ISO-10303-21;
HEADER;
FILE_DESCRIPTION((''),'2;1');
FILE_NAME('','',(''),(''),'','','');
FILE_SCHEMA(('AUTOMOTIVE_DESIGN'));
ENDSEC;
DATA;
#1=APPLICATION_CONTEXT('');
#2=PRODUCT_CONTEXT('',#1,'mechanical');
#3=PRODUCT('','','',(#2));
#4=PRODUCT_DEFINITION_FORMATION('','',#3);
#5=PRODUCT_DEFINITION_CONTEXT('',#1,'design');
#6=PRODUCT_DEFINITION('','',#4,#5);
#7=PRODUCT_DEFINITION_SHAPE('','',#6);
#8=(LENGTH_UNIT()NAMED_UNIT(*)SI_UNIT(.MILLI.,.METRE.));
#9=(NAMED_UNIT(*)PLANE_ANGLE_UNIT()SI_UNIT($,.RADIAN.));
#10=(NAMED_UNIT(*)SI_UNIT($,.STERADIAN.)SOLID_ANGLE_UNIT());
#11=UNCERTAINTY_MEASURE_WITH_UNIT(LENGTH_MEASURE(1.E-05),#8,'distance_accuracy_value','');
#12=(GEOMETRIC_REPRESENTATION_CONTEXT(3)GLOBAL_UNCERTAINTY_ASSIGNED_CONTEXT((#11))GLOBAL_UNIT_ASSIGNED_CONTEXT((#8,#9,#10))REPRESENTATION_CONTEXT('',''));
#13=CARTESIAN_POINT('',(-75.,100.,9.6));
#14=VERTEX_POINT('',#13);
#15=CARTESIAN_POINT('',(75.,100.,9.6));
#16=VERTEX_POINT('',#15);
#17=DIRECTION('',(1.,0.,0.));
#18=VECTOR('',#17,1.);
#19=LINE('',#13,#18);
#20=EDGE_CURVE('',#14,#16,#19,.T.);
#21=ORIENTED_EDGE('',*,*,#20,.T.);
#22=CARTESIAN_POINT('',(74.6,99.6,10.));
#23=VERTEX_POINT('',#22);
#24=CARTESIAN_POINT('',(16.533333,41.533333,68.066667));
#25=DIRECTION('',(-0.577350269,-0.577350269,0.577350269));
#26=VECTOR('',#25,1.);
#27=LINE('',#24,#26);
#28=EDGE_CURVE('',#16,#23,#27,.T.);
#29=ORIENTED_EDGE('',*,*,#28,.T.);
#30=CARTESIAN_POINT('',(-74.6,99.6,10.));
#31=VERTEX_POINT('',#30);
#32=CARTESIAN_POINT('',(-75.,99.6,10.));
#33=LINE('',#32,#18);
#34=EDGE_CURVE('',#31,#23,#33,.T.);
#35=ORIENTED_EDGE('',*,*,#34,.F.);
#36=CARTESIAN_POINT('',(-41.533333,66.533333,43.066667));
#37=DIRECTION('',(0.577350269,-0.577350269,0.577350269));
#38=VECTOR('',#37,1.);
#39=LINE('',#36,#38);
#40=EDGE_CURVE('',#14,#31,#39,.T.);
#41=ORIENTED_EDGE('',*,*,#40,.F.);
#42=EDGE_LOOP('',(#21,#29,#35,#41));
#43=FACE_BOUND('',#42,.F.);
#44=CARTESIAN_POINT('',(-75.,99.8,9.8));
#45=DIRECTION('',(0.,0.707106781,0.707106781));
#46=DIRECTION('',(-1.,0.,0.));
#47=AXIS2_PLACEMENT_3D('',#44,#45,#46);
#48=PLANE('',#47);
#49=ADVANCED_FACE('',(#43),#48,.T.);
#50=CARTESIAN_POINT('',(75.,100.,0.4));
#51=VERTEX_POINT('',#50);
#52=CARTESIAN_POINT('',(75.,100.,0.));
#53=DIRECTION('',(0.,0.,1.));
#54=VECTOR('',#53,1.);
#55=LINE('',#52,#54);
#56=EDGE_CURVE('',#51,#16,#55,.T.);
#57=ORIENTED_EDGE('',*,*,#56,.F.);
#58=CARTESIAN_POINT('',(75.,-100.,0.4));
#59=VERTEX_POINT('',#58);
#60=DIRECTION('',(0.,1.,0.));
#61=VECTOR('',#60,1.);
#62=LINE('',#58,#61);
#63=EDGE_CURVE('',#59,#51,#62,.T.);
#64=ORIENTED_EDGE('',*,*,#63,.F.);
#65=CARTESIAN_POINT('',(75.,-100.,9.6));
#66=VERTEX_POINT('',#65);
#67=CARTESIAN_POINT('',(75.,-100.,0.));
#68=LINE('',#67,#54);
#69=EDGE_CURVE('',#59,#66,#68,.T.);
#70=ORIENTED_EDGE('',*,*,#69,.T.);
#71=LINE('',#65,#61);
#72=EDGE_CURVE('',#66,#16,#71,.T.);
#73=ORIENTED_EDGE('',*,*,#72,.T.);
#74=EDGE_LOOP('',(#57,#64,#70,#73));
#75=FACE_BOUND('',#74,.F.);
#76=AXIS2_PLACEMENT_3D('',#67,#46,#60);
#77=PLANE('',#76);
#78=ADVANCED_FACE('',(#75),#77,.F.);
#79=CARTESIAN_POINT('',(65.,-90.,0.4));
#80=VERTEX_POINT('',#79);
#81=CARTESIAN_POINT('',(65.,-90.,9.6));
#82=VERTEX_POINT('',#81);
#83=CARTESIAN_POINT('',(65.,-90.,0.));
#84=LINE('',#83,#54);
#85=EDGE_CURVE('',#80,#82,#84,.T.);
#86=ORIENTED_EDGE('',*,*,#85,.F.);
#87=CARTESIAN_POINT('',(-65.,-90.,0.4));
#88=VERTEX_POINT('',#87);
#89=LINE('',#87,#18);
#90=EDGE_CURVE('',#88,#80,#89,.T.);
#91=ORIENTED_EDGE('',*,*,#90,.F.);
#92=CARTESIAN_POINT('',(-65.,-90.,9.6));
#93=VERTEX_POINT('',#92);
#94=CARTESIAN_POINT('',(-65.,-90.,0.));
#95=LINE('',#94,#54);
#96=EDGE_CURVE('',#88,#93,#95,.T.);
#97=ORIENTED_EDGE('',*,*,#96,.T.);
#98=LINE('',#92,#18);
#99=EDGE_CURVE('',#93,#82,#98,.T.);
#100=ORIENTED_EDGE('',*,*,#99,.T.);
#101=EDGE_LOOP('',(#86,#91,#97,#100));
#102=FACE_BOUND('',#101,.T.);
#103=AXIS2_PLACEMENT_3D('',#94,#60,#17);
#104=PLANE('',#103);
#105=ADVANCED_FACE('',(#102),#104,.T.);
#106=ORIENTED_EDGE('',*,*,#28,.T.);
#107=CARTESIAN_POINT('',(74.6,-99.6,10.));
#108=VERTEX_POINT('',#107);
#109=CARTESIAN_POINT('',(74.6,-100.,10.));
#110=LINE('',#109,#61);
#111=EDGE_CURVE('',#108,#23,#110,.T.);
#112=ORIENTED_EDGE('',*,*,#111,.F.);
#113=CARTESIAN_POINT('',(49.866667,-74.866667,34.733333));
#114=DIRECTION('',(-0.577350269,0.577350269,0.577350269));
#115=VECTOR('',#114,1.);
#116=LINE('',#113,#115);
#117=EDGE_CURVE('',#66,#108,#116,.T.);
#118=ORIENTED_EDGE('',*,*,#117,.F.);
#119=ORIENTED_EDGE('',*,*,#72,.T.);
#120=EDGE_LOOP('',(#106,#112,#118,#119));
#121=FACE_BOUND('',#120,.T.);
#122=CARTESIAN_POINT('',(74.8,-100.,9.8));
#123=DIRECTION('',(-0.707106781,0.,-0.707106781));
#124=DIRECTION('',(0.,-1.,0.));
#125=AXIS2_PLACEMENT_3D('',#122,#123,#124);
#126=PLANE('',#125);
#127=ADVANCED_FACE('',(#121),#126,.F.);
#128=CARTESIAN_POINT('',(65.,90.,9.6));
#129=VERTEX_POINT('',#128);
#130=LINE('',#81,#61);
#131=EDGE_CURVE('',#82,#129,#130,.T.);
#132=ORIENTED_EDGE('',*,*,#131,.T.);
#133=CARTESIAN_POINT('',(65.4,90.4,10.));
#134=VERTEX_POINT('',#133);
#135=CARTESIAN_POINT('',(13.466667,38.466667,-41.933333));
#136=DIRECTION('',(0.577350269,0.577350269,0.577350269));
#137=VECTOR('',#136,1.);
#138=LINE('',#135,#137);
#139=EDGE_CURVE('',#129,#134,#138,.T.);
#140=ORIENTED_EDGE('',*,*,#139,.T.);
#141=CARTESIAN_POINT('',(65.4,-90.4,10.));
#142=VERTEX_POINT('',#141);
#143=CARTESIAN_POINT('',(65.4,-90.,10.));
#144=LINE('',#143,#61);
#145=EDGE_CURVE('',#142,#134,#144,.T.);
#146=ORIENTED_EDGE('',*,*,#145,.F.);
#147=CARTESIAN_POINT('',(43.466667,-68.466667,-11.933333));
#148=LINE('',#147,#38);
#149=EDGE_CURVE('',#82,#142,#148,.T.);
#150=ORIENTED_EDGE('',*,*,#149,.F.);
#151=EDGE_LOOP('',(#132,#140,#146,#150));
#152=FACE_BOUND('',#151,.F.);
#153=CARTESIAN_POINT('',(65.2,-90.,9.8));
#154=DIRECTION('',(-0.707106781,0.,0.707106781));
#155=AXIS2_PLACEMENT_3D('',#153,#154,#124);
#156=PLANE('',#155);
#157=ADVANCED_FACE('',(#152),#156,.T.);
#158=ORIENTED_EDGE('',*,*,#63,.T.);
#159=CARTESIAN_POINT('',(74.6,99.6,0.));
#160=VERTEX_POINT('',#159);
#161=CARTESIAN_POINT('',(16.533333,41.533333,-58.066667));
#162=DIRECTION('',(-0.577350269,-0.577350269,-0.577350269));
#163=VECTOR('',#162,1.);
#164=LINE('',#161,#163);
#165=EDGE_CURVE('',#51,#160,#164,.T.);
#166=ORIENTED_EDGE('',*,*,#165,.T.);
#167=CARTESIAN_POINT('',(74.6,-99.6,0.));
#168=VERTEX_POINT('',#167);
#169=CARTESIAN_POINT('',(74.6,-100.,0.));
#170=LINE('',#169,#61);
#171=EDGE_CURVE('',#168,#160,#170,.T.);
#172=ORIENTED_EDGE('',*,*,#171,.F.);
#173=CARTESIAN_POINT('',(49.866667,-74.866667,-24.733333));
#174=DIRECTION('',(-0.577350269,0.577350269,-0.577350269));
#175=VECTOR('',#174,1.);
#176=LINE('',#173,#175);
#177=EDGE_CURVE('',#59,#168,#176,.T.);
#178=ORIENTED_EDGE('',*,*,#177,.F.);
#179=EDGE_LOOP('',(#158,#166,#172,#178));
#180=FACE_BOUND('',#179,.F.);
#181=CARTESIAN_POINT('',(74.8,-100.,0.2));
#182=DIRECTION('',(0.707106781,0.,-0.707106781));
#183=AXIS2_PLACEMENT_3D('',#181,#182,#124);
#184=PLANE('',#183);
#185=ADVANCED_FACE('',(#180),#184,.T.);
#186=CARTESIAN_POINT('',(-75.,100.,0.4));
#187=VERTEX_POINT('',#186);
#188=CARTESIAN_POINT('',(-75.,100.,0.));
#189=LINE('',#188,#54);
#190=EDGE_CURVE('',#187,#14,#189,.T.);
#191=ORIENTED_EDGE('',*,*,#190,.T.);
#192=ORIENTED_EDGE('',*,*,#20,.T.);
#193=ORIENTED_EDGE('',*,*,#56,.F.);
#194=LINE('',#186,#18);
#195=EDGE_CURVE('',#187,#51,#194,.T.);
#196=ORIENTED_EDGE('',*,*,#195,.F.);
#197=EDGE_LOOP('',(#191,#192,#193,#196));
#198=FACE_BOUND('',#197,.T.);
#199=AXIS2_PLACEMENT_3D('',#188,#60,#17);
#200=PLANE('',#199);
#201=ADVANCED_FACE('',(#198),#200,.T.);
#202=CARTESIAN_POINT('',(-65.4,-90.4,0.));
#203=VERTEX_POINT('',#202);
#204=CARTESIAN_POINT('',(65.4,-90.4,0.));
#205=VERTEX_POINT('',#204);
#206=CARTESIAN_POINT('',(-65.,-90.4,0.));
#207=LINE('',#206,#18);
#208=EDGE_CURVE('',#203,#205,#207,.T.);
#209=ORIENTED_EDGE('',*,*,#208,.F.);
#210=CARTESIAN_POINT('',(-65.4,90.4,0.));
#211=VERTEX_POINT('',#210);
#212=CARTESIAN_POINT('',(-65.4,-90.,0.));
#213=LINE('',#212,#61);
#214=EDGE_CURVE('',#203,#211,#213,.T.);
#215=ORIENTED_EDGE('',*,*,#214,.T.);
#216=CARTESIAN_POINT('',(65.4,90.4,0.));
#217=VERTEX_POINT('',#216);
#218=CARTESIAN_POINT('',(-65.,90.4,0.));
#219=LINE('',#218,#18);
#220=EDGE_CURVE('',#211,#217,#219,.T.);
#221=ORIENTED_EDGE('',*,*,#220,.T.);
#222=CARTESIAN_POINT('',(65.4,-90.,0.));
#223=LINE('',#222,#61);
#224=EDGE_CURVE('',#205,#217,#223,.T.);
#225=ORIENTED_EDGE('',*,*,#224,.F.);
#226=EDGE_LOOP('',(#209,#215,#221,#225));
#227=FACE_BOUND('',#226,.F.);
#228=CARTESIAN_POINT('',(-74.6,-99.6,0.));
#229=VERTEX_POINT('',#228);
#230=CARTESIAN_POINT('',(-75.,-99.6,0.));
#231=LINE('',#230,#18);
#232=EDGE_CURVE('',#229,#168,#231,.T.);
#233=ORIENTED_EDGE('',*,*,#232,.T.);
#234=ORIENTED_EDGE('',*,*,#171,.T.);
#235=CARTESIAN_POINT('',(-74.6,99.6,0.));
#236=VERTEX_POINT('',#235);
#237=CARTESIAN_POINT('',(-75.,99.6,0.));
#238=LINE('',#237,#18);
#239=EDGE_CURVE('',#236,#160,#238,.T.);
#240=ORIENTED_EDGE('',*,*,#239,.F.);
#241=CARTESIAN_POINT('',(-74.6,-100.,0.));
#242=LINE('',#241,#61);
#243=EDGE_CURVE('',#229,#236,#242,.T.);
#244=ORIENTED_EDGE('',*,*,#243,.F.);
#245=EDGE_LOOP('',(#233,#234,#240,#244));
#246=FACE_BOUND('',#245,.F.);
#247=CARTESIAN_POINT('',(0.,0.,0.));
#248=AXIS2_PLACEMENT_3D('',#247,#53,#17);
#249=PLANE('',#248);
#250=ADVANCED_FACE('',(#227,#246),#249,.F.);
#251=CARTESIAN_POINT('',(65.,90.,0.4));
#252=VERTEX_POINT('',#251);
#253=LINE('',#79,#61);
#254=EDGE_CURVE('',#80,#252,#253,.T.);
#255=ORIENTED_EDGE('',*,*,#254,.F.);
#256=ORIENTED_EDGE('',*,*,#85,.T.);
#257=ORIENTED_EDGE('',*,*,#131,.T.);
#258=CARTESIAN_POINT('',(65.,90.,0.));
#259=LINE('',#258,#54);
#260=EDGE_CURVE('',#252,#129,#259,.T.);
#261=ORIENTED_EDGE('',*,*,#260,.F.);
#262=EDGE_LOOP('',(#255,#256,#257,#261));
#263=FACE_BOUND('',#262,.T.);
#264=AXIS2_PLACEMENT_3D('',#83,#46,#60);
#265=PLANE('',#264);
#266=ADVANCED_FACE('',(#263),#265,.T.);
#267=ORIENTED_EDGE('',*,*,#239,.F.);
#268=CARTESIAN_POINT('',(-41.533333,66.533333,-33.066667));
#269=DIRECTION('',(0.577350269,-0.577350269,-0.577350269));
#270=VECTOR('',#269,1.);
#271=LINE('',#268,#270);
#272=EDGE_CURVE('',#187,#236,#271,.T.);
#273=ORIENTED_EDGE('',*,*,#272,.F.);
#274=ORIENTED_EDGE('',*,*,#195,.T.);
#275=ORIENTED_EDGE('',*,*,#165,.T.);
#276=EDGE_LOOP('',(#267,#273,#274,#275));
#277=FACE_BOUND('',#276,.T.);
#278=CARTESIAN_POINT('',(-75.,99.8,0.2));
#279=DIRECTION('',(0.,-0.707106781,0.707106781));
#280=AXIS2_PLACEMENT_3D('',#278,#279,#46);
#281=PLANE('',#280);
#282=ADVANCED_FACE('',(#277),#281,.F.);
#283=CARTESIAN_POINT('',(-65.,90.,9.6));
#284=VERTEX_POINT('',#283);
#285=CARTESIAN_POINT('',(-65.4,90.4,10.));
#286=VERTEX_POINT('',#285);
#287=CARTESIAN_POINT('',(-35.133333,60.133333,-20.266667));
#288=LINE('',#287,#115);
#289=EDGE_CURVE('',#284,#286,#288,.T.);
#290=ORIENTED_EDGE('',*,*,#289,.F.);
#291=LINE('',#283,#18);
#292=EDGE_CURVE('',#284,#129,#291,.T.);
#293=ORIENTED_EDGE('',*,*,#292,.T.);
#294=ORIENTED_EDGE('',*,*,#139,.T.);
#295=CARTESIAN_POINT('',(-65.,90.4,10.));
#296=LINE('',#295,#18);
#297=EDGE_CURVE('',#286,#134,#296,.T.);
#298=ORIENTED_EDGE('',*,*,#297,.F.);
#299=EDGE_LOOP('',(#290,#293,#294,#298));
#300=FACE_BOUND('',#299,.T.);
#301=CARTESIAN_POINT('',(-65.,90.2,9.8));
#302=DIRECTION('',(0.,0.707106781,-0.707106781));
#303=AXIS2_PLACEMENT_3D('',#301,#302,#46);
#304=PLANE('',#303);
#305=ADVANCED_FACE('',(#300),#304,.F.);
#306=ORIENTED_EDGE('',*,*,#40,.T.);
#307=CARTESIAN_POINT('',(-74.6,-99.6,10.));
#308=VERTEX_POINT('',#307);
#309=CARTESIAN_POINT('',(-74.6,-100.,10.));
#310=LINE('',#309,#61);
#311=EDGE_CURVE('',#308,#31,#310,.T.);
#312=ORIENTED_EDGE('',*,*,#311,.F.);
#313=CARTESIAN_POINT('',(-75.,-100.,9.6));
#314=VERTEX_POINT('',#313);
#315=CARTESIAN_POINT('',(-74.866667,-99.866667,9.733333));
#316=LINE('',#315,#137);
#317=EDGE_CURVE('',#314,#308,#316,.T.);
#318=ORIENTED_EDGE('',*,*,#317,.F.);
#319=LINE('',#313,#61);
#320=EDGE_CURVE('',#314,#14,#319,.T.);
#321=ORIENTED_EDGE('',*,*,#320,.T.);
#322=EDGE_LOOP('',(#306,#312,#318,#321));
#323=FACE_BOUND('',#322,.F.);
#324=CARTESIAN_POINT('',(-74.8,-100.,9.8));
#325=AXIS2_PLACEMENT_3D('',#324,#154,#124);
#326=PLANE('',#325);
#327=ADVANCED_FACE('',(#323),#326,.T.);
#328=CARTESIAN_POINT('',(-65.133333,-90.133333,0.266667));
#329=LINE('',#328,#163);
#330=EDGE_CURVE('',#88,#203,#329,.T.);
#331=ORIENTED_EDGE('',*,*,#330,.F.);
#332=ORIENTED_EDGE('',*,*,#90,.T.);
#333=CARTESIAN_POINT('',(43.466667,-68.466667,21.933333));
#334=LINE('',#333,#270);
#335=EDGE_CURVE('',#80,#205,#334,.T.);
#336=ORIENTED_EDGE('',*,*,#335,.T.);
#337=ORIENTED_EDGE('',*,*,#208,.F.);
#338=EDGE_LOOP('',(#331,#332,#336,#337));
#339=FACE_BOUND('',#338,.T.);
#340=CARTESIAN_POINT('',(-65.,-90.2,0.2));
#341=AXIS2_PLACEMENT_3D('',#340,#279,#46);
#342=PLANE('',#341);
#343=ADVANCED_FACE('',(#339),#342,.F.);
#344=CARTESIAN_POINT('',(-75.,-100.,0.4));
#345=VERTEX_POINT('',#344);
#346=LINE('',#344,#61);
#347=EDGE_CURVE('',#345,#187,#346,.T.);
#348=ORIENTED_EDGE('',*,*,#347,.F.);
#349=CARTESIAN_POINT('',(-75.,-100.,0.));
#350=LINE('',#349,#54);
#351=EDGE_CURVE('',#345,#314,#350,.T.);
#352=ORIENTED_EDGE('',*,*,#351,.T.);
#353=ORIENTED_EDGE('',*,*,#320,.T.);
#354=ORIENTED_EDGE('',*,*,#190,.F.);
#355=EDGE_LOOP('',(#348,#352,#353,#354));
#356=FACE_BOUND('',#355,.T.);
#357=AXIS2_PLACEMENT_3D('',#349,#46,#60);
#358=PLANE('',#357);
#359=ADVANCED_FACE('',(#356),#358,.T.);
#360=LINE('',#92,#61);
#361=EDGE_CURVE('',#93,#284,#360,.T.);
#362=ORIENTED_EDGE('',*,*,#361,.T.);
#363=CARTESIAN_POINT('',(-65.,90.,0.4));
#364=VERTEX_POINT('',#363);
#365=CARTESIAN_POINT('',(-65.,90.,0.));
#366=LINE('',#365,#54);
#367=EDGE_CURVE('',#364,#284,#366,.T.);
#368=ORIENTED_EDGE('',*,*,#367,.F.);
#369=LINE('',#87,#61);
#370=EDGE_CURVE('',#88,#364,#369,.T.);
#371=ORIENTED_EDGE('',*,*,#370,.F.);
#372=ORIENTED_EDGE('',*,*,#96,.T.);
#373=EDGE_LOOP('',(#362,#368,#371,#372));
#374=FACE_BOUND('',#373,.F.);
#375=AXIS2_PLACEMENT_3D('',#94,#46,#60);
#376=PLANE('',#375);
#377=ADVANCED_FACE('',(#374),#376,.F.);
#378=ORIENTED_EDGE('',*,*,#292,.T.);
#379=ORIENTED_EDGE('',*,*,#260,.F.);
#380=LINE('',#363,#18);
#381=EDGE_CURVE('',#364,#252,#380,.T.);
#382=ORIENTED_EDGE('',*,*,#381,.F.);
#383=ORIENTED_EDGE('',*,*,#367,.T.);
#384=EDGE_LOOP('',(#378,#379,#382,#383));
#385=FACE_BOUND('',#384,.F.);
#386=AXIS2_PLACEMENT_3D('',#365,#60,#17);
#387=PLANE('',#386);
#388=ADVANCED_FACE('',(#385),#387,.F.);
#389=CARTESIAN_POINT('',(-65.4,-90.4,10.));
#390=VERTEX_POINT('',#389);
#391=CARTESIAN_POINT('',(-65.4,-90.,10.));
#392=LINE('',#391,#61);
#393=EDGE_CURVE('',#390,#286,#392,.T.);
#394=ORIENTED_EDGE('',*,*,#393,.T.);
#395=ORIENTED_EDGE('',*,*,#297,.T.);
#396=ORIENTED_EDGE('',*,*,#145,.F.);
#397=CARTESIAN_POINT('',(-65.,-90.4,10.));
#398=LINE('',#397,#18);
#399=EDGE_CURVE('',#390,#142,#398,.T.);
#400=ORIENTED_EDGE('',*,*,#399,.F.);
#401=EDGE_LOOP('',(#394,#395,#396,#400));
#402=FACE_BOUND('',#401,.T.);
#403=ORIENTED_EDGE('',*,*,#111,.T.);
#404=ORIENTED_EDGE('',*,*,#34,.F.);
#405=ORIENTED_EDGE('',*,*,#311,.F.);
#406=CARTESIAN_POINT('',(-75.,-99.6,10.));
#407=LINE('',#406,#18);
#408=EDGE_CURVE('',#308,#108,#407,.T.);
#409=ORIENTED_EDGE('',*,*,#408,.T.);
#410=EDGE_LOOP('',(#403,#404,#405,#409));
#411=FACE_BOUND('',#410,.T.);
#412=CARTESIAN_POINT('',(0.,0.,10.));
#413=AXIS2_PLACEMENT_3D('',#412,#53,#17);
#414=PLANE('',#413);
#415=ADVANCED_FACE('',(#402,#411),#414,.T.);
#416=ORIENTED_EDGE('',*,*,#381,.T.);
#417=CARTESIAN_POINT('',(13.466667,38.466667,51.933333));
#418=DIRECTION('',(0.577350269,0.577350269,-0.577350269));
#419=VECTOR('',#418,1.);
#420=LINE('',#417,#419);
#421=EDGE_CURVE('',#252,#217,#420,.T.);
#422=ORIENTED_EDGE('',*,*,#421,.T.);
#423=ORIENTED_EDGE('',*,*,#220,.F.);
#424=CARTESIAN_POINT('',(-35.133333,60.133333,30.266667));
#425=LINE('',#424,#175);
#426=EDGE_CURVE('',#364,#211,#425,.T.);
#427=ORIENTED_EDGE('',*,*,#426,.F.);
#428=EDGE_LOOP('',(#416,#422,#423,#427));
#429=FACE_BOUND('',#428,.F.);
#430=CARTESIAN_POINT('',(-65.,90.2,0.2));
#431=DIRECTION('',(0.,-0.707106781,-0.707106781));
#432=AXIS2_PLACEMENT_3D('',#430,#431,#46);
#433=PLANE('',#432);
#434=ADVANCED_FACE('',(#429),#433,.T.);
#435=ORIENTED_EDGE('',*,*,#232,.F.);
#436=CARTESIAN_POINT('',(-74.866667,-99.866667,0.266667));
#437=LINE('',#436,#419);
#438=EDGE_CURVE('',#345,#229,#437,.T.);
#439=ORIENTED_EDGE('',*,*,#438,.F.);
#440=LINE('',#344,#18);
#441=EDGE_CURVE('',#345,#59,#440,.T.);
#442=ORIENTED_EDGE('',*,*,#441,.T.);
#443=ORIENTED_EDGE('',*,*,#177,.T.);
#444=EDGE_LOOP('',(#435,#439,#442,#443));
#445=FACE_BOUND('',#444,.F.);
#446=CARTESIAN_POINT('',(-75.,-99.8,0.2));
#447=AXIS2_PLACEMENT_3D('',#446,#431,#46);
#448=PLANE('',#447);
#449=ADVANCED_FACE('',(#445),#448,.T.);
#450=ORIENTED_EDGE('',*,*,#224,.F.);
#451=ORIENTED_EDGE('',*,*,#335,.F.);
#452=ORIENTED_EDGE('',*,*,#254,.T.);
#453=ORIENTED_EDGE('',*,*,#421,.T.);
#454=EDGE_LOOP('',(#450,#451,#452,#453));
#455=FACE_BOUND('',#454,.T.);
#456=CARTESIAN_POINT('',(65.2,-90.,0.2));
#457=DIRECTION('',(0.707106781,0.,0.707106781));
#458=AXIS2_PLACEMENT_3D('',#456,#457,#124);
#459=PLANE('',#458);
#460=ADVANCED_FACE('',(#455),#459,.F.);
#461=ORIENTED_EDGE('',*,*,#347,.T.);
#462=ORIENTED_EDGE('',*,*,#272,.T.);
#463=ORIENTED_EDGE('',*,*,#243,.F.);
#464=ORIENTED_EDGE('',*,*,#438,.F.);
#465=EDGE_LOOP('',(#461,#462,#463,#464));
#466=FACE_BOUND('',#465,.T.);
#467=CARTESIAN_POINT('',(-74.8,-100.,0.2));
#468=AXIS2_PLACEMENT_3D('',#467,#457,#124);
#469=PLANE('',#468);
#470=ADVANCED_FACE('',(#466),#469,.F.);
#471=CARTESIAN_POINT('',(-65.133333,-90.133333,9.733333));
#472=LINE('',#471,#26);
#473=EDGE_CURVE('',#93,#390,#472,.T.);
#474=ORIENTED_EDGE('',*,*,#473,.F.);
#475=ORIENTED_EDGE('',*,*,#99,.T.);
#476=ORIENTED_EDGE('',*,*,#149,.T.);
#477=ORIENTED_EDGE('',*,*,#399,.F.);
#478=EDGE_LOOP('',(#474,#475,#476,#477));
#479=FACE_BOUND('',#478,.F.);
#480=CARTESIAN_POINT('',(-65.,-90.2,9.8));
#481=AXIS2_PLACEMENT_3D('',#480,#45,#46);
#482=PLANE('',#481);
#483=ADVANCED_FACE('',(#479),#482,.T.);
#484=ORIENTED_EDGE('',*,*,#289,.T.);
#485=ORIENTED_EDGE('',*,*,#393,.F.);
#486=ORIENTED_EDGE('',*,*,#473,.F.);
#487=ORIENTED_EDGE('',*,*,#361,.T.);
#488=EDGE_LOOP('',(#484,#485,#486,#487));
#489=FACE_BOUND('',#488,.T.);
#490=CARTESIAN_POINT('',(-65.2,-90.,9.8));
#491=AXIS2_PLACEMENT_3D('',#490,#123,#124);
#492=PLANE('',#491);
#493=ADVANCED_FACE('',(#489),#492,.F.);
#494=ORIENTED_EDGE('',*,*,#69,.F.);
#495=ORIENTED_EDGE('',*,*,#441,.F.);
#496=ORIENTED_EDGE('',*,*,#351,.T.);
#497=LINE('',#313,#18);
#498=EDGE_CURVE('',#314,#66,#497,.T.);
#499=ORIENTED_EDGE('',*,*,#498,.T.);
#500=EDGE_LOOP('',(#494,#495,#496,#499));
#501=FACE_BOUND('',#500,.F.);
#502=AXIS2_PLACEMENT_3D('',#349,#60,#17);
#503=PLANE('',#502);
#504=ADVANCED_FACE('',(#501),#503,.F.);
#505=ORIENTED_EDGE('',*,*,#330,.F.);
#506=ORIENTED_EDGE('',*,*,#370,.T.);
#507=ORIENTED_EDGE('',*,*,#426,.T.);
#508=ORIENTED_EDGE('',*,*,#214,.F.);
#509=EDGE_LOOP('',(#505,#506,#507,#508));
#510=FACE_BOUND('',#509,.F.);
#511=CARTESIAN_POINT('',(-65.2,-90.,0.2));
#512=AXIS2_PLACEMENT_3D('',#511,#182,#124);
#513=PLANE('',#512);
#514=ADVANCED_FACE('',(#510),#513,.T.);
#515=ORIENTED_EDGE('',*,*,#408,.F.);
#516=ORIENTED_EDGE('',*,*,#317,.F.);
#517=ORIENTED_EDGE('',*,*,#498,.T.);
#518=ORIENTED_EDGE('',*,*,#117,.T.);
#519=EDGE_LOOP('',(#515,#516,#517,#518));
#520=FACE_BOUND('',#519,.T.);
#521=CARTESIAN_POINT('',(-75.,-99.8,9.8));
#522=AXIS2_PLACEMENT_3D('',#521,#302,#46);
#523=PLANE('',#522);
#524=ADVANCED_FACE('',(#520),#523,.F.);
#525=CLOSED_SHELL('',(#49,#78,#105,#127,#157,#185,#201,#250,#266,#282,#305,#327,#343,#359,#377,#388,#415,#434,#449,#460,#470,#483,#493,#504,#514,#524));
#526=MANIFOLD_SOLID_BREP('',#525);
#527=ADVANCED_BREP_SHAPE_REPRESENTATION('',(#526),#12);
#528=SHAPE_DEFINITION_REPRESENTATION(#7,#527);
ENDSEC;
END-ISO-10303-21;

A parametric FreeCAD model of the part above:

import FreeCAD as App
import Part
import Sketcher

V = App.Vector


def edges_at(feature, points):
    """Names of the edges that pass closest to the given points."""
    edges = feature.Shape.Edges
    near = lambda p: min(range(len(edges)), key=lambda i: edges[i].distToShape(Part.Vertex(*p))[0])
    return sorted({f"Edge{near(p) + 1}" for p in points})


def add_polygon(sketch, points):
    """Adds a closed chain of lines whose ends are joined by coincident constraints."""
    first, n = sketch.GeometryCount, len(points)
    for a, b in zip(points, points[1:] + points[:1]):
        sketch.addGeometry(Part.LineSegment(App.Vector(*a, 0), App.Vector(*b, 0)), False)
    for i in range(n):
        sketch.addConstraint(Sketcher.Constraint("Coincident", first + i, 2, first + (i + 1) % n, 1))

doc = App.newDocument("Part")
body = doc.addObject("PartDesign::Body", "Body")

# Sketch on XY plane
sketch1 = body.newObject("Sketcher::SketchObject", "Sketch")
sketch1.AttachmentSupport = (doc.getObject("XY_Plane"), [""])
sketch1.MapMode = "FlatFace"
add_polygon(sketch1, [(-75, 100), (-75, -100), (75, -100), (75, 100)])  # lines 0-3
add_polygon(sketch1, [(65, -90), (-65, -90), (-65, 90), (65, 90)])  # lines 4-7
sketch1.addConstraint(Sketcher.Constraint("Vertical", 0))
sketch1.addConstraint(Sketcher.Constraint("Horizontal", 1))
sketch1.addConstraint(Sketcher.Constraint("Vertical", 2))
sketch1.addConstraint(Sketcher.Constraint("Horizontal", 3))
sketch1.addConstraint(Sketcher.Constraint("Horizontal", 4))
sketch1.addConstraint(Sketcher.Constraint("Vertical", 5))
sketch1.addConstraint(Sketcher.Constraint("Horizontal", 6))
sketch1.addConstraint(Sketcher.Constraint("Vertical", 7))
sketch1.addConstraint(Sketcher.Constraint("Symmetric", 0, 2, 2, 2, -1, 1))
sketch1.addConstraint(Sketcher.Constraint("Symmetric", 4, 2, 6, 2, -1, 1))
sketch1.addConstraint(Sketcher.Constraint("DistanceX", 1, 1, 1, 2, 150.0))
sketch1.addConstraint(Sketcher.Constraint("DistanceX", 4, 2, 4, 1, 130.0))
sketch1.addConstraint(Sketcher.Constraint("DistanceY", 0, 2, 0, 1, 200.0))
sketch1.addConstraint(Sketcher.Constraint("DistanceY", 5, 1, 5, 2, 180.0))
pad1 = body.newObject("PartDesign::Pad", "Pad")
pad1.Profile = sketch1
pad1.Length = 10
doc.recompute()

chamfer = body.newObject("PartDesign::Chamfer", "Chamfer")
chamfer.Base = (pad1, edges_at(pad1, [
    (75, 0, 10),
    (0, 100, 10),
    (-75, 0, 10),
    (0, -100, 10),
    (0, 90, 10),
    (65, 0, 10),
    (0, -90, 10),
    (-65, 0, 10),
    (75, 0, 0),
    (0, 100, 0),
    (-75, 0, 0),
    (0, -100, 0),
    (0, 90, 0),
    (65, 0, 0),
    (0, -90, 0),
    (-65, 0, 0),
]))
chamfer.Size = 0.4

doc.recompute()
